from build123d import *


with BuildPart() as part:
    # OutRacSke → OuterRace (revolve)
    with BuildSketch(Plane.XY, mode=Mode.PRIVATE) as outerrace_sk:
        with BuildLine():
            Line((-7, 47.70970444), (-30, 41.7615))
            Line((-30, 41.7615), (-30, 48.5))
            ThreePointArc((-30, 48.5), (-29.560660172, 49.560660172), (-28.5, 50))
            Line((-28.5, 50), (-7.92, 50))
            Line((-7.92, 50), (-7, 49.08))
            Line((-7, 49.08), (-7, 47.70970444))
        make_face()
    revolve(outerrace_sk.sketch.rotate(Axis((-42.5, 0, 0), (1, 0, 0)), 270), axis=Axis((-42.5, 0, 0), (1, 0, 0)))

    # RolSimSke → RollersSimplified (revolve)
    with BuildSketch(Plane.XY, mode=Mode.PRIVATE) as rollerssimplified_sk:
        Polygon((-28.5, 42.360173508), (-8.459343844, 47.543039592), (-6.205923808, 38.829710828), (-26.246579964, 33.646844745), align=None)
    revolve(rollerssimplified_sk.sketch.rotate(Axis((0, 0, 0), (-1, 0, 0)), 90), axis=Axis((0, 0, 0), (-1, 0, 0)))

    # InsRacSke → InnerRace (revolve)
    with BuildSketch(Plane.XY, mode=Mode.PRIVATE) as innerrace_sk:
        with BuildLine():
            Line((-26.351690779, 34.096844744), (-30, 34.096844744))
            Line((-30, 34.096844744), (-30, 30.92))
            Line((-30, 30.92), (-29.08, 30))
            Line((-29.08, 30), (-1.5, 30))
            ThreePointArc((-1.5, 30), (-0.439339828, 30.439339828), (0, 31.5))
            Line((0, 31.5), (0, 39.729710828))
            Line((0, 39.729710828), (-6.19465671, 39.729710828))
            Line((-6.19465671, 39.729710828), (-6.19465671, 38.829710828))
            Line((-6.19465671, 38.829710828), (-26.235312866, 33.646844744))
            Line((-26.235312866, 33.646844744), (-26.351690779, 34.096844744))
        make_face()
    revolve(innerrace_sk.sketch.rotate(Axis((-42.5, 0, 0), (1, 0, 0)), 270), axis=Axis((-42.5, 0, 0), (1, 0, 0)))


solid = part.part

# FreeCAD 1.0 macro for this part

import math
import FreeCAD as App
import Part
import Sketcher
from FreeCAD import Vector
Q = App.Units.Quantity

doc = App.newDocument("Part")
params = doc.addObject("Spreadsheet::Sheet", "Params")
for row, (alias, value) in enumerate([
    ("sketch1_radius", "1.5 mm"),
    ("sketch1_width", "20.58 mm"),
    ("revolution_angle", "360 deg"),
    ("sketch2_length", "9 mm"),
    ("sketch2_length2", "20.7 mm"),
    ("revolution2_angle", "360 deg"),
    ("sketch3_radius", "1.5 mm"),
    ("sketch3_height", "0.9 mm"),
    ("sketch3_length", "20.7 mm"),
    ("sketch3_width", "27.58 mm"),
    ("revolution3_angle", "360 deg"),
], start=1):
    params.set(f"A{row}", alias)
    params.set(f"B{row}", "=" + value)
    params.setAlias(f"B{row}", alias)

body = doc.addObject("PartDesign::Body", "Body")

# Sketch on XY plane
sketch1 = body.newObject("Sketcher::SketchObject", "Sketch")
sketch1.AttachmentSupport = (doc.getObject("XY_Plane"), [""])
sketch1.MapMode = "FlatFace"
sketch1.addGeometry(Part.LineSegment(Vector(-30, 41.8, 0), Vector(-7, 47.7, 0)), False)
sketch1.addGeometry(Part.LineSegment(Vector(-7, 47.7, 0), Vector(-7, 49.1, 0)), False)
sketch1.addGeometry(Part.LineSegment(Vector(-7, 49.1, 0), Vector(-7.9, 50, 0)), False)
sketch1.addGeometry(Part.LineSegment(Vector(-7.9, 50, 0), Vector(-28.5, 50, 0)), False)
sketch1.addGeometry(Part.ArcOfCircle(Part.Circle(Vector(-28.5, 48.5, 0), Vector(0, 0, 1), 1.5), math.radians(90), math.radians(180)), False)
sketch1.addGeometry(Part.LineSegment(Vector(-30, 48.5, 0), Vector(-30, 41.8, 0)), False)
sketch1.addConstraint(Sketcher.Constraint("Coincident", 0, 2, 1, 1))
sketch1.addConstraint(Sketcher.Constraint("Coincident", 1, 2, 2, 1))
sketch1.addConstraint(Sketcher.Constraint("Coincident", 2, 2, 3, 1))
sketch1.addConstraint(Sketcher.Constraint("Tangent", 3, 2, 4, 1))
sketch1.addConstraint(Sketcher.Constraint("Tangent", 4, 2, 5, 1))
sketch1.addConstraint(Sketcher.Constraint("Coincident", 5, 2, 0, 1))
sketch1.addConstraint(Sketcher.Constraint("Vertical", 1))
sketch1.addConstraint(Sketcher.Constraint("Horizontal", 3))
sketch1.addConstraint(Sketcher.Constraint("Vertical", 5))
sketch1.addConstraint(Sketcher.Constraint("Radius", 4, Q("1.5 mm")))
sketch1.addConstraint(Sketcher.Constraint("Angle", 2, Q("135 deg")))
sketch1.addConstraint(Sketcher.Constraint("DistanceX", 0, 2, -1, 1, Q("7 mm")))
sketch1.addConstraint(Sketcher.Constraint("DistanceY", -1, 1, 2, 2, Q("50 mm")))
sketch1.addConstraint(Sketcher.Constraint("DistanceX", 4, 2, -1, 1, Q("30 mm")))
sketch1.addConstraint(Sketcher.Constraint("Angle", 0, Q("14.5 deg")))
sketch1.addConstraint(Sketcher.Constraint("DistanceX", 3, 2, 3, 1, Q("20.58 mm")))
sketch1.addConstraint(Sketcher.Constraint("DistanceY", 5, 2, 5, 1, Q("6.7385 mm")))
sketch1.setExpression("Constraints[9]", "Params.sketch1_radius")
sketch1.setExpression("Constraints[15]", "Params.sketch1_width")
revolution = body.newObject("PartDesign::Revolution", "Revolution")
revolution.Profile = sketch1
revolution.ReferenceAxis = (sketch1, ["H_Axis"])
revolution.setExpression("Angle", "Params.revolution_angle")

# Sketch on XY plane
sketch2 = body.newObject("Sketcher::SketchObject", "Sketch001")
sketch2.AttachmentSupport = (doc.getObject("XY_Plane"), [""])
sketch2.MapMode = "FlatFace"
sketch2.addGeometry(Part.LineSegment(Vector(-8, 48, 0), Vector(-28, 42, 0)), False)
sketch2.addGeometry(Part.LineSegment(Vector(-28, 42, 0), Vector(-26, 34, 0)), False)
sketch2.addGeometry(Part.LineSegment(Vector(-26, 34, 0), Vector(-6, 39, 0)), False)
sketch2.addGeometry(Part.LineSegment(Vector(-6, 39, 0), Vector(-8, 48, 0)), False)
sketch2.addConstraint(Sketcher.Constraint("Coincident", 0, 2, 1, 1))
sketch2.addConstraint(Sketcher.Constraint("Coincident", 1, 2, 2, 1))
sketch2.addConstraint(Sketcher.Constraint("Coincident", 2, 2, 3, 1))
sketch2.addConstraint(Sketcher.Constraint("Coincident", 3, 2, 0, 1))
sketch2.addConstraint(Sketcher.Constraint("Perpendicular", 0, 1))
sketch2.addConstraint(Sketcher.Constraint("Perpendicular", 1, 2))
sketch2.addConstraint(Sketcher.Constraint("Perpendicular", 2, 3))
sketch2.addConstraint(Sketcher.Constraint("Distance", 1, Q("9 mm")))
sketch2.addConstraint(Sketcher.Constraint("Angle", 0, Q("-165.5 deg")))
sketch2.addConstraint(Sketcher.Constraint("Distance", 0, Q("20.7 mm")))
sketch2.addConstraint(Sketcher.Constraint("DistanceX", 0, 2, -1, 1, Q("28.5 mm")))
sketch2.addConstraint(Sketcher.Constraint("DistanceY", -1, 1, 2, 2, Q("38.829711 mm")))
sketch2.setExpression("Constraints[7]", "Params.sketch2_length")
sketch2.setExpression("Constraints[9]", "Params.sketch2_length2")
revolution2 = body.newObject("PartDesign::Revolution", "Revolution001")
revolution2.Profile = sketch2
revolution2.ReferenceAxis = (sketch2, ["H_Axis"])
revolution2.setExpression("Angle", "Params.revolution2_angle")

# Sketch on XY plane
sketch3 = body.newObject("Sketcher::SketchObject", "Sketch002")
sketch3.AttachmentSupport = (doc.getObject("XY_Plane"), [""])
sketch3.MapMode = "FlatFace"
sketch3.addGeometry(Part.LineSegment(Vector(-26.35, 34.1, 0), Vector(-30, 34.1, 0)), False)
sketch3.addGeometry(Part.LineSegment(Vector(-30, 34.1, 0), Vector(-30, 30.92, 0)), False)
sketch3.addGeometry(Part.LineSegment(Vector(-30, 30.92, 0), Vector(-29.08, 30, 0)), False)
sketch3.addGeometry(Part.LineSegment(Vector(-29.08, 30, 0), Vector(-1.5, 30, 0)), False)
sketch3.addGeometry(Part.ArcOfCircle(Part.Circle(Vector(-1.5, 31.5, 0), Vector(0, 0, 1), 1.5), math.radians(-90), math.radians(0)), False)
sketch3.addGeometry(Part.LineSegment(Vector(0, 31.5, 0), Vector(0, 39.73, 0)), False)
sketch3.addGeometry(Part.LineSegment(Vector(0, 39.73, 0), Vector(-6.19, 39.73, 0)), False)
sketch3.addGeometry(Part.LineSegment(Vector(-6.19, 39.73, 0), Vector(-6.19, 38.83, 0)), False)
sketch3.addGeometry(Part.LineSegment(Vector(-6.19, 38.83, 0), Vector(-26.24, 33.65, 0)), False)
sketch3.addGeometry(Part.LineSegment(Vector(-26.24, 33.65, 0), Vector(-26.35, 34.1, 0)), False)
sketch3.addConstraint(Sketcher.Constraint("Coincident", 0, 2, 1, 1))
sketch3.addConstraint(Sketcher.Constraint("Coincident", 1, 2, 2, 1))
sketch3.addConstraint(Sketcher.Constraint("Coincident", 2, 2, 3, 1))
sketch3.addConstraint(Sketcher.Constraint("Tangent", 3, 2, 4, 1))
sketch3.addConstraint(Sketcher.Constraint("Tangent", 4, 2, 5, 1))
sketch3.addConstraint(Sketcher.Constraint("Coincident", 5, 2, 6, 1))
sketch3.addConstraint(Sketcher.Constraint("Coincident", 6, 2, 7, 1))
sketch3.addConstraint(Sketcher.Constraint("Coincident", 7, 2, 8, 1))
sketch3.addConstraint(Sketcher.Constraint("Coincident", 8, 2, 9, 1))
sketch3.addConstraint(Sketcher.Constraint("Coincident", 9, 2, 0, 1))
sketch3.addConstraint(Sketcher.Constraint("Horizontal", 0))
sketch3.addConstraint(Sketcher.Constraint("Vertical", 1))
sketch3.addConstraint(Sketcher.Constraint("Horizontal", 3))
sketch3.addConstraint(Sketcher.Constraint("Vertical", 5))
sketch3.addConstraint(Sketcher.Constraint("Horizontal", 6))
sketch3.addConstraint(Sketcher.Constraint("Vertical", 7))
sketch3.addConstraint(Sketcher.Constraint("PointOnObject", 4, 2, -2))
sketch3.addConstraint(Sketcher.Constraint("Perpendicular", 8, 9))
sketch3.addConstraint(Sketcher.Constraint("Radius", 4, Q("1.5 mm")))
sketch3.addConstraint(Sketcher.Constraint("Angle", 2, Q("-45 deg")))
sketch3.addConstraint(Sketcher.Constraint("DistanceY", 7, 2, 7, 1, Q("0.9 mm")))
sketch3.addConstraint(Sketcher.Constraint("DistanceX", 0, 2, -1, 1, Q("30 mm")))
sketch3.addConstraint(Sketcher.Constraint("DistanceY", -1, 1, 2, 2, Q("30 mm")))
sketch3.addConstraint(Sketcher.Constraint("Angle", 8, Q("-165.5 deg")))
sketch3.addConstraint(Sketcher.Constraint("Distance", 8, Q("20.7 mm")))
sketch3.addConstraint(Sketcher.Constraint("DistanceX", 3, 1, 3, 2, Q("27.58 mm")))
sketch3.addConstraint(Sketcher.Constraint("DistanceY", 8, 2, 0, 2, Q("0.45 mm")))
sketch3.addConstraint(Sketcher.Constraint("DistanceX", 0, 2, 0, 1, Q("3.648309 mm")))
sketch3.addConstraint(Sketcher.Constraint("DistanceY", 5, 1, 5, 2, Q("8.229711 mm")))
sketch3.setExpression("Constraints[18]", "Params.sketch3_radius")
sketch3.setExpression("Constraints[20]", "Params.sketch3_height")
sketch3.setExpression("Constraints[24]", "Params.sketch3_length")
sketch3.setExpression("Constraints[25]", "Params.sketch3_width")
revolution3 = body.newObject("PartDesign::Revolution", "Revolution002")
revolution3.Profile = sketch3
revolution3.ReferenceAxis = (sketch3, ["H_Axis"])
revolution3.setExpression("Angle", "Params.revolution3_angle")

doc.recompute()
